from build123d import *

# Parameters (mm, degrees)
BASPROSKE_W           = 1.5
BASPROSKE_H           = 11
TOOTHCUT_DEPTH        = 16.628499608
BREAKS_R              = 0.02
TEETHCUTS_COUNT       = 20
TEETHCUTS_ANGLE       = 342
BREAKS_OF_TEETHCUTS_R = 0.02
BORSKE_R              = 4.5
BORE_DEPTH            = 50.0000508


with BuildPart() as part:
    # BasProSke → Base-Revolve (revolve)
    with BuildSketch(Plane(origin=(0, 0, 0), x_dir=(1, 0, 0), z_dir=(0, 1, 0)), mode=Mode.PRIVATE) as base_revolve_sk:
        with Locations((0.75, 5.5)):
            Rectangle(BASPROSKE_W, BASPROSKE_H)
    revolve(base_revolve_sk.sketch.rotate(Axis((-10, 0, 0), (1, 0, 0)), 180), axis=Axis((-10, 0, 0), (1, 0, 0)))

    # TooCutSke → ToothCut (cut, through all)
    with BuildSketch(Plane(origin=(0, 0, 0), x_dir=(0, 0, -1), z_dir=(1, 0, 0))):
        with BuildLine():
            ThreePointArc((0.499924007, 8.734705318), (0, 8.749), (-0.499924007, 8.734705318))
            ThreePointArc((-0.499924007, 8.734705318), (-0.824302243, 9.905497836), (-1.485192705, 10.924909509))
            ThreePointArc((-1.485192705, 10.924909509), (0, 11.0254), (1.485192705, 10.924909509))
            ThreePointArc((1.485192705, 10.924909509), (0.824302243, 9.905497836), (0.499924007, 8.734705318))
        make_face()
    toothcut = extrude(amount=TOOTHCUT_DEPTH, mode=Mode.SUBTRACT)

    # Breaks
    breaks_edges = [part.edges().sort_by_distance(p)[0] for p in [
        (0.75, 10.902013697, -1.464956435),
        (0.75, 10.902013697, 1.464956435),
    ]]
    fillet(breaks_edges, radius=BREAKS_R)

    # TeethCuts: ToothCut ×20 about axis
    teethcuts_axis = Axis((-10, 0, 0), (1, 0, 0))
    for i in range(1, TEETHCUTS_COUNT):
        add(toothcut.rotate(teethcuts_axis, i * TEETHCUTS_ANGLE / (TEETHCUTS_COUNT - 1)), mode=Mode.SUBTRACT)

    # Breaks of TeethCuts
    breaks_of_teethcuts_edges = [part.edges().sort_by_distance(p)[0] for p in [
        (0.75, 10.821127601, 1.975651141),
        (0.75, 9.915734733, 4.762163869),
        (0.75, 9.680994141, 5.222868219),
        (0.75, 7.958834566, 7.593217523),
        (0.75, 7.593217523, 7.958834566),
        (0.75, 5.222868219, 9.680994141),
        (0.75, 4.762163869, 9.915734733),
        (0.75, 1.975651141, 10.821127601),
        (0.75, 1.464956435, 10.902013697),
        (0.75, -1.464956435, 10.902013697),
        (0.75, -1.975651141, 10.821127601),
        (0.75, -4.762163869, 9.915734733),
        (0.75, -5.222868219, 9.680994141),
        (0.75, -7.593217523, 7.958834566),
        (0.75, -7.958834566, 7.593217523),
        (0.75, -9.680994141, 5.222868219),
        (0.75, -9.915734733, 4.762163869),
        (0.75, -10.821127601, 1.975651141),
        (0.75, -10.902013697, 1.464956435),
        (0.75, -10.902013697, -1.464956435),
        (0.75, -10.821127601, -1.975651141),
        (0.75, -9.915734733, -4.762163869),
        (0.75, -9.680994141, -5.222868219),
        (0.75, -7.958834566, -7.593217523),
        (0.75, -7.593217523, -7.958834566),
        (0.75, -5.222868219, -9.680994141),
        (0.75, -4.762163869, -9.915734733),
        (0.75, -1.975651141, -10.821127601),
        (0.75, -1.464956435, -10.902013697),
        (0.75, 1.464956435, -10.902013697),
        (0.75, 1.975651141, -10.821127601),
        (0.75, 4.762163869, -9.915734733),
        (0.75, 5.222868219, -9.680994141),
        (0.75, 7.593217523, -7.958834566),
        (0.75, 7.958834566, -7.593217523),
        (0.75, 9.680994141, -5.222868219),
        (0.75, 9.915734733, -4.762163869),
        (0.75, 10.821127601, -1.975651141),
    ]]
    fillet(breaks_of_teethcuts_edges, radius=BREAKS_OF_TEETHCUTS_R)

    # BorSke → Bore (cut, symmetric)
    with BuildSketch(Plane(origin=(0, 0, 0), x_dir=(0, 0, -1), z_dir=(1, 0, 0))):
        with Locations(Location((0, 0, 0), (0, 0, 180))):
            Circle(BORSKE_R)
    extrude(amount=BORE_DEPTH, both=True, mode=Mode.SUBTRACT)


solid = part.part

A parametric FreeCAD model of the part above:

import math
import FreeCAD as App
import Part
import Sketcher


def edges_at(feature, points):
    """Names of the edges that pass closest to the given points."""
    edges = feature.Shape.Edges
    near = lambda p: min(range(len(edges)), key=lambda i: edges[i].distToShape(Part.Vertex(*p))[0])
    return sorted({f"Edge{near(p) + 1}" for p in points})

doc = App.newDocument("Part")
body = doc.addObject("PartDesign::Body", "Body")

# Sketch on XZ plane
sketch1 = body.newObject("Sketcher::SketchObject", "Sketch")
sketch1.AttachmentSupport = (doc.getObject("XZ_Plane"), [""])
sketch1.MapMode = "FlatFace"
sketch1.addGeometry([
    Part.LineSegment(App.Vector(0, -11, 0), App.Vector(0, 0, 0)),
    Part.LineSegment(App.Vector(0, 0, 0), App.Vector(1.5, 0, 0)),
    Part.LineSegment(App.Vector(1.5, 0, 0), App.Vector(1.5, -11, 0)),
    Part.LineSegment(App.Vector(1.5, -11, 0), App.Vector(0, -11, 0)),
], False)
sketch1.addConstraint([
    Sketcher.Constraint("Coincident", 0, 2, 1, 1),
    Sketcher.Constraint("Coincident", 1, 2, 2, 1),
    Sketcher.Constraint("Coincident", 2, 2, 3, 1),
    Sketcher.Constraint("Coincident", 3, 2, 0, 1),
    Sketcher.Constraint("Vertical", 0),
    Sketcher.Constraint("Horizontal", 1),
    Sketcher.Constraint("Vertical", 2),
    Sketcher.Constraint("Horizontal", 3),
    Sketcher.Constraint("Coincident", 0, 2, -1, 1),
    Sketcher.Constraint("DistanceY", 0, 1, 0, 2, 11.0),
    Sketcher.Constraint("DistanceX", 1, 1, 1, 2, 1.5),
])
revolution = body.newObject("PartDesign::Revolution", "Revolution")
revolution.Profile = sketch1
revolution.ReferenceAxis = (sketch1, ["H_Axis"])
revolution.Angle = 360

# Sketch on YZ plane
sketch2 = body.newObject("Sketcher::SketchObject", "Sketch001")
sketch2.AttachmentSupport = (doc.getObject("YZ_Plane"), [""])
sketch2.MapMode = "FlatFace"
sketch2.addGeometry([
    Part.ArcOfCircle(Part.Circle(App.Vector(0, 0, 0), App.Vector(0, 0, 1), 8.749), math.radians(-3.275705), math.radians(3.275705)),
    Part.ArcOfCircle(Part.Circle(App.Vector(8.264487, -4.47219, 0), App.Vector(0, 0, 1), 4), math.radians(48.309566), math.radians(83.249005)),
    Part.ArcOfCircle(Part.Circle(App.Vector(0, 0, 0), App.Vector(0, 0, 1), 11.0254), math.radians(-7.741647), math.radians(7.741647)),
    Part.ArcOfCircle(Part.Circle(App.Vector(8.264487, 4.47219, 0), App.Vector(0, 0, 1), 4), math.radians(-83.249005), math.radians(-48.309566)),
], False)
sketch2.addConstraint([
    Sketcher.Constraint("Coincident", 0, 1, 1, 2),
    Sketcher.Constraint("Coincident", 1, 1, 2, 1),
    Sketcher.Constraint("Coincident", 2, 2, 3, 2),
    Sketcher.Constraint("Coincident", 3, 1, 0, 2),
    Sketcher.Constraint("Coincident", 0, 3, -1, 1),
    Sketcher.Constraint("Coincident", 2, 3, -1, 1),
    Sketcher.Constraint("Equal", 1, 3),
    Sketcher.Constraint("Symmetric", 1, 3, 3, 3, -1),
    Sketcher.Constraint("Radius", 1, 4.0),
    Sketcher.Constraint("Radius", 0, 8.749),
    Sketcher.Constraint("Radius", 2, 11.0254),
    Sketcher.Constraint("DistanceY", 1, 3, -1, 1, 4.47219),
    Sketcher.Constraint("DistanceX", -1, 1, 1, 1, 10.92491),
])
pocket1 = body.newObject("PartDesign::Pocket", "Pocket")
pocket1.Profile = sketch2
pocket1.Type = "ThroughAll"
pocket1.Reversed = True
doc.recompute()

fillet = body.newObject("PartDesign::Fillet", "Fillet")
fillet.Base = (pocket1, edges_at(pocket1, [(0.75, 10.902, -1.465), (0.75, 10.902, 1.465)]))
fillet.Radius = 0.02
doc.recompute()

polarpattern = body.newObject("PartDesign::PolarPattern", "PolarPattern")
polarpattern.Originals = [pocket1]
polarpattern.Axis = (doc.getObject("X_Axis"), [""])
polarpattern.Angle = 360
polarpattern.Occurrences = 20
body.Tip = polarpattern
doc.recompute()

fillet2 = body.newObject("PartDesign::Fillet", "Fillet001")
fillet2.Base = (polarpattern, edges_at(polarpattern, [
    (0.75, 10.821, 1.976),
    (0.75, 9.916, 4.762),
    (0.75, 9.681, 5.223),
    (0.75, 7.959, 7.593),
    (0.75, 7.593, 7.959),
    (0.75, 5.223, 9.681),
    (0.75, 4.762, 9.916),
    (0.75, 1.976, 10.821),
    (0.75, 1.465, 10.902),
    (0.75, -1.465, 10.902),
    (0.75, -1.976, 10.821),
    (0.75, -4.762, 9.916),
    (0.75, -5.223, 9.681),
    (0.75, -7.593, 7.959),
    (0.75, -7.959, 7.593),
    (0.75, -9.681, 5.223),
    (0.75, -9.916, 4.762),
    (0.75, -10.821, 1.976),
    (0.75, -10.902, 1.465),
    (0.75, -10.902, -1.465),
    (0.75, -10.821, -1.976),
    (0.75, -9.916, -4.762),
    (0.75, -9.681, -5.223),
    (0.75, -7.959, -7.593),
    (0.75, -7.593, -7.959),
    (0.75, -5.223, -9.681),
    (0.75, -4.762, -9.916),
    (0.75, -1.976, -10.821),
    (0.75, -1.465, -10.902),
    (0.75, 1.465, -10.902),
    (0.75, 1.976, -10.821),
    (0.75, 4.762, -9.916),
    (0.75, 5.223, -9.681),
    (0.75, 7.593, -7.959),
    (0.75, 7.959, -7.593),
    (0.75, 9.681, -5.223),
    (0.75, 9.916, -4.762),
    (0.75, 10.821, -1.976),
]))
fillet2.Radius = 0.02

# Sketch on YZ plane
sketch3 = body.newObject("Sketcher::SketchObject", "Sketch002")
sketch3.AttachmentSupport = (doc.getObject("YZ_Plane"), [""])
sketch3.MapMode = "FlatFace"
sketch3.addGeometry(Part.Circle(App.Vector(0, 0, 0), App.Vector(0, 0, 1), 4.5), False)
sketch3.addConstraint([
    Sketcher.Constraint("Coincident", 0, 3, -1, 1),
    Sketcher.Constraint("Diameter", 0, 9.0),
])
pocket2 = body.newObject("PartDesign::Pocket", "Pocket001")
pocket2.Profile = sketch3
pocket2.Length = 100.000102
pocket2.Midplane = True

doc.recompute()
